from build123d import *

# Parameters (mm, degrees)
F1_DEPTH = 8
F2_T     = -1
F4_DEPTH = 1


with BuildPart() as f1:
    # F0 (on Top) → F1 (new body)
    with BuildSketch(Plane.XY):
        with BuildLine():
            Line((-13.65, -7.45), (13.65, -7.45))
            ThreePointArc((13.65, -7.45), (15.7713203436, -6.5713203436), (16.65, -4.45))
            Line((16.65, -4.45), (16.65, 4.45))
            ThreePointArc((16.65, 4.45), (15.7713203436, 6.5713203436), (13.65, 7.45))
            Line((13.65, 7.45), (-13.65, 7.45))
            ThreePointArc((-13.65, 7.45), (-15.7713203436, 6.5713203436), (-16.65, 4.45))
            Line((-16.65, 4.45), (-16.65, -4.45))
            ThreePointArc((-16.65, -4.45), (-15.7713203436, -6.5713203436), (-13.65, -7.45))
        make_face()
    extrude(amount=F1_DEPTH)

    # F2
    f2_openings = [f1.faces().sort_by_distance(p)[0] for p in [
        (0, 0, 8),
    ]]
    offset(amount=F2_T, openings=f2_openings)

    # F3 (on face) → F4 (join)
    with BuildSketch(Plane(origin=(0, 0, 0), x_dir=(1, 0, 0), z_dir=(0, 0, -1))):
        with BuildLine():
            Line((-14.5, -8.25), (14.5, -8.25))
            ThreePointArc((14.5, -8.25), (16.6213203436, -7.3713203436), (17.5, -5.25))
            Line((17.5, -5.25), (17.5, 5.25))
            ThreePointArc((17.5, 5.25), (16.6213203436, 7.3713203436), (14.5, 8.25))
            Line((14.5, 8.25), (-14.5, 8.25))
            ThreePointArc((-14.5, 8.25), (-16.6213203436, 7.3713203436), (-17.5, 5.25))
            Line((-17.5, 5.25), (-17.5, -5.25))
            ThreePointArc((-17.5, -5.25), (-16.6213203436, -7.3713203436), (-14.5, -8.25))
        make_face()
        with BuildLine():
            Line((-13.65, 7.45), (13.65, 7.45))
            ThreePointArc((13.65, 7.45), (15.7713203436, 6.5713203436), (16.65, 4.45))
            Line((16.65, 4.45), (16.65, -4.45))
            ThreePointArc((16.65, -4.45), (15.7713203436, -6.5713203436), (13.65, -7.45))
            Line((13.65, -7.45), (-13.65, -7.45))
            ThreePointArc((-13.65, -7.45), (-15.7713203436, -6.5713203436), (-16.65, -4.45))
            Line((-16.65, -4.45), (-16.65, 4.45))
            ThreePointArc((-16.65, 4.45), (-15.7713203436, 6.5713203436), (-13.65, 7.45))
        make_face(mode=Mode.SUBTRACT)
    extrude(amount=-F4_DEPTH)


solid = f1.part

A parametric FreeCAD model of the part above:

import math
import FreeCAD as App
import Part
import Sketcher

V = App.Vector
Q = App.Units.Quantity


def faces_at(feature, points):
    """Names of the faces that lie closest to the given points."""
    faces = feature.Shape.Faces
    near = lambda p: min(range(len(faces)), key=lambda i: faces[i].distToShape(Part.Vertex(*p))[0])
    return sorted({f"Face{near(p) + 1}" for p in points})

doc = App.newDocument("Part")
body = doc.addObject("PartDesign::Body", "Body")

# Sketch on XY plane
sketch1 = body.newObject("Sketcher::SketchObject", "Sketch")
sketch1.AttachmentSupport = (doc.getObject("XY_Plane"), [""])
sketch1.MapMode = "FlatFace"
sketch1.addGeometry([
    Part.LineSegment(V(-13.7, -7.5, 0), V(13.7, -7.5, 0)),  # 0
    Part.ArcOfCircle(Part.Circle(V(13.7, -4.5, 0), V(0, 0, 1), 3), math.radians(-90), math.radians(0)),  # 1
    Part.LineSegment(V(16.6, -4.5, 0), V(16.6, 4.5, 0)),  # 2
    Part.ArcOfCircle(Part.Circle(V(13.7, 4.5, 0), V(0, 0, 1), 3), math.radians(0), math.radians(90)),  # 3
    Part.LineSegment(V(13.7, 7.5, 0), V(-13.7, 7.5, 0)),  # 4
    Part.ArcOfCircle(Part.Circle(V(-13.7, 4.5, 0), V(0, 0, 1), 3), math.radians(90), math.radians(180)),  # 5
    Part.LineSegment(V(-16.6, 4.5, 0), V(-16.6, -4.5, 0)),  # 6
    Part.ArcOfCircle(Part.Circle(V(-13.7, -4.5, 0), V(0, 0, 1), 3), math.radians(180), math.radians(270)),  # 7
], False)
sketch1.addConstraint([
    Sketcher.Constraint("Tangent", 0, 2, 1, 1),
    Sketcher.Constraint("Tangent", 1, 2, 2, 1),
    Sketcher.Constraint("Tangent", 2, 2, 3, 1),
    Sketcher.Constraint("Tangent", 3, 2, 4, 1),
    Sketcher.Constraint("Tangent", 4, 2, 5, 1),
    Sketcher.Constraint("Tangent", 5, 2, 6, 1),
    Sketcher.Constraint("Tangent", 6, 2, 7, 1),
    Sketcher.Constraint("Tangent", 7, 2, 0, 1),
    Sketcher.Constraint("Horizontal", 0),
    Sketcher.Constraint("Vertical", 2),
    Sketcher.Constraint("Horizontal", 4),
    Sketcher.Constraint("Vertical", 6),
    Sketcher.Constraint("Equal", 1, 3),
    Sketcher.Constraint("Equal", 3, 5),
    Sketcher.Constraint("Equal", 5, 7),
    Sketcher.Constraint("Symmetric", 1, 3, 5, 3, -1, 1),
    Sketcher.Constraint("Radius", 1, Q("3 mm")),
    Sketcher.Constraint("DistanceX", 0, 1, 0, 2, Q("27.3 mm")),
    Sketcher.Constraint("DistanceY", 2, 1, 2, 2, Q("8.9 mm")),
])
pad1 = body.newObject("PartDesign::Pad", "Pad")
pad1.Profile = sketch1
pad1.Length = 8
doc.recompute()

thickness = body.newObject("PartDesign::Thickness", "Thickness")
thickness.Base = (pad1, faces_at(pad1, [(0, 0, 8)]))
thickness.Value = 1
thickness.Reversed = True
thickness.Join = "Arc"

# Sketch on XY plane
sketch2 = body.newObject("Sketcher::SketchObject", "Sketch001")
sketch2.AttachmentSupport = (doc.getObject("XY_Plane"), [""])
sketch2.MapMode = "FlatFace"
sketch2.addGeometry([
    Part.LineSegment(V(-14.5, 8.2, 0), V(14.5, 8.2, 0)),  # 0
    Part.ArcOfCircle(Part.Circle(V(14.5, 5.2, 0), V(0, 0, 1), 3), math.radians(0), math.radians(90)),  # 1
    Part.LineSegment(V(17.5, 5.2, 0), V(17.5, -5.2, 0)),  # 2
    Part.ArcOfCircle(Part.Circle(V(14.5, -5.2, 0), V(0, 0, 1), 3), math.radians(-90), math.radians(0)),  # 3
    Part.LineSegment(V(14.5, -8.2, 0), V(-14.5, -8.2, 0)),  # 4
    Part.ArcOfCircle(Part.Circle(V(-14.5, -5.2, 0), V(0, 0, 1), 3), math.radians(180), math.radians(270)),  # 5
    Part.LineSegment(V(-17.5, -5.2, 0), V(-17.5, 5.2, 0)),  # 6
    Part.ArcOfCircle(Part.Circle(V(-14.5, 5.2, 0), V(0, 0, 1), 3), math.radians(90), math.radians(180)),  # 7
    Part.ArcOfCircle(Part.Circle(V(-13.7, -4.5, 0), V(0, 0, 1), 3), math.radians(180), math.radians(270)),  # 8
    Part.LineSegment(V(-13.7, -7.5, 0), V(13.7, -7.5, 0)),  # 9
    Part.ArcOfCircle(Part.Circle(V(13.7, -4.5, 0), V(0, 0, 1), 3), math.radians(-90), math.radians(0)),  # 10
    Part.LineSegment(V(16.6, -4.5, 0), V(16.6, 4.5, 0)),  # 11
    Part.ArcOfCircle(Part.Circle(V(13.7, 4.5, 0), V(0, 0, 1), 3), math.radians(0), math.radians(90)),  # 12
    Part.LineSegment(V(13.7, 7.5, 0), V(-13.7, 7.5, 0)),  # 13
    Part.ArcOfCircle(Part.Circle(V(-13.7, 4.5, 0), V(0, 0, 1), 3), math.radians(90), math.radians(180)),  # 14
    Part.LineSegment(V(-16.6, 4.5, 0), V(-16.6, -4.5, 0)),  # 15
], False)
sketch2.addConstraint([
    Sketcher.Constraint("Tangent", 0, 2, 1, 2),
    Sketcher.Constraint("Tangent", 1, 1, 2, 1),
    Sketcher.Constraint("Tangent", 2, 2, 3, 2),
    Sketcher.Constraint("Tangent", 3, 1, 4, 1),
    Sketcher.Constraint("Tangent", 4, 2, 5, 2),
    Sketcher.Constraint("Tangent", 5, 1, 6, 1),
    Sketcher.Constraint("Tangent", 6, 2, 7, 2),
    Sketcher.Constraint("Tangent", 7, 1, 0, 1),
    Sketcher.Constraint("Tangent", 8, 2, 9, 1),
    Sketcher.Constraint("Tangent", 9, 2, 10, 1),
    Sketcher.Constraint("Tangent", 10, 2, 11, 1),
    Sketcher.Constraint("Tangent", 11, 2, 12, 1),
    Sketcher.Constraint("Tangent", 12, 2, 13, 1),
    Sketcher.Constraint("Tangent", 13, 2, 14, 1),
    Sketcher.Constraint("Tangent", 14, 2, 15, 1),
    Sketcher.Constraint("Tangent", 15, 2, 8, 1),
    Sketcher.Constraint("Horizontal", 0),
    Sketcher.Constraint("Vertical", 2),
    Sketcher.Constraint("Horizontal", 4),
    Sketcher.Constraint("Vertical", 6),
    Sketcher.Constraint("Horizontal", 9),
    Sketcher.Constraint("Vertical", 11),
    Sketcher.Constraint("Horizontal", 13),
    Sketcher.Constraint("Vertical", 15),
    Sketcher.Constraint("Equal", 1, 3),
    Sketcher.Constraint("Equal", 3, 5),
    Sketcher.Constraint("Equal", 5, 7),
    Sketcher.Constraint("Equal", 7, 8),
    Sketcher.Constraint("Equal", 8, 10),
    Sketcher.Constraint("Equal", 10, 12),
    Sketcher.Constraint("Equal", 12, 14),
    Sketcher.Constraint("Symmetric", 1, 3, 5, 3, -1, 1),
    Sketcher.Constraint("Symmetric", 8, 3, 12, 3, -1, 1),
    Sketcher.Constraint("Radius", 1, Q("3 mm")),
    Sketcher.Constraint("DistanceX", 0, 1, 0, 2, Q("29 mm")),
    Sketcher.Constraint("DistanceX", 9, 1, 9, 2, Q("27.3 mm")),
    Sketcher.Constraint("DistanceY", 2, 2, 2, 1, Q("10.5 mm")),
    Sketcher.Constraint("DistanceY", 11, 1, 11, 2, Q("8.9 mm")),
])
pad2 = body.newObject("PartDesign::Pad", "Pad001")
pad2.Profile = sketch2
pad2.Length = 1

doc.recompute()
